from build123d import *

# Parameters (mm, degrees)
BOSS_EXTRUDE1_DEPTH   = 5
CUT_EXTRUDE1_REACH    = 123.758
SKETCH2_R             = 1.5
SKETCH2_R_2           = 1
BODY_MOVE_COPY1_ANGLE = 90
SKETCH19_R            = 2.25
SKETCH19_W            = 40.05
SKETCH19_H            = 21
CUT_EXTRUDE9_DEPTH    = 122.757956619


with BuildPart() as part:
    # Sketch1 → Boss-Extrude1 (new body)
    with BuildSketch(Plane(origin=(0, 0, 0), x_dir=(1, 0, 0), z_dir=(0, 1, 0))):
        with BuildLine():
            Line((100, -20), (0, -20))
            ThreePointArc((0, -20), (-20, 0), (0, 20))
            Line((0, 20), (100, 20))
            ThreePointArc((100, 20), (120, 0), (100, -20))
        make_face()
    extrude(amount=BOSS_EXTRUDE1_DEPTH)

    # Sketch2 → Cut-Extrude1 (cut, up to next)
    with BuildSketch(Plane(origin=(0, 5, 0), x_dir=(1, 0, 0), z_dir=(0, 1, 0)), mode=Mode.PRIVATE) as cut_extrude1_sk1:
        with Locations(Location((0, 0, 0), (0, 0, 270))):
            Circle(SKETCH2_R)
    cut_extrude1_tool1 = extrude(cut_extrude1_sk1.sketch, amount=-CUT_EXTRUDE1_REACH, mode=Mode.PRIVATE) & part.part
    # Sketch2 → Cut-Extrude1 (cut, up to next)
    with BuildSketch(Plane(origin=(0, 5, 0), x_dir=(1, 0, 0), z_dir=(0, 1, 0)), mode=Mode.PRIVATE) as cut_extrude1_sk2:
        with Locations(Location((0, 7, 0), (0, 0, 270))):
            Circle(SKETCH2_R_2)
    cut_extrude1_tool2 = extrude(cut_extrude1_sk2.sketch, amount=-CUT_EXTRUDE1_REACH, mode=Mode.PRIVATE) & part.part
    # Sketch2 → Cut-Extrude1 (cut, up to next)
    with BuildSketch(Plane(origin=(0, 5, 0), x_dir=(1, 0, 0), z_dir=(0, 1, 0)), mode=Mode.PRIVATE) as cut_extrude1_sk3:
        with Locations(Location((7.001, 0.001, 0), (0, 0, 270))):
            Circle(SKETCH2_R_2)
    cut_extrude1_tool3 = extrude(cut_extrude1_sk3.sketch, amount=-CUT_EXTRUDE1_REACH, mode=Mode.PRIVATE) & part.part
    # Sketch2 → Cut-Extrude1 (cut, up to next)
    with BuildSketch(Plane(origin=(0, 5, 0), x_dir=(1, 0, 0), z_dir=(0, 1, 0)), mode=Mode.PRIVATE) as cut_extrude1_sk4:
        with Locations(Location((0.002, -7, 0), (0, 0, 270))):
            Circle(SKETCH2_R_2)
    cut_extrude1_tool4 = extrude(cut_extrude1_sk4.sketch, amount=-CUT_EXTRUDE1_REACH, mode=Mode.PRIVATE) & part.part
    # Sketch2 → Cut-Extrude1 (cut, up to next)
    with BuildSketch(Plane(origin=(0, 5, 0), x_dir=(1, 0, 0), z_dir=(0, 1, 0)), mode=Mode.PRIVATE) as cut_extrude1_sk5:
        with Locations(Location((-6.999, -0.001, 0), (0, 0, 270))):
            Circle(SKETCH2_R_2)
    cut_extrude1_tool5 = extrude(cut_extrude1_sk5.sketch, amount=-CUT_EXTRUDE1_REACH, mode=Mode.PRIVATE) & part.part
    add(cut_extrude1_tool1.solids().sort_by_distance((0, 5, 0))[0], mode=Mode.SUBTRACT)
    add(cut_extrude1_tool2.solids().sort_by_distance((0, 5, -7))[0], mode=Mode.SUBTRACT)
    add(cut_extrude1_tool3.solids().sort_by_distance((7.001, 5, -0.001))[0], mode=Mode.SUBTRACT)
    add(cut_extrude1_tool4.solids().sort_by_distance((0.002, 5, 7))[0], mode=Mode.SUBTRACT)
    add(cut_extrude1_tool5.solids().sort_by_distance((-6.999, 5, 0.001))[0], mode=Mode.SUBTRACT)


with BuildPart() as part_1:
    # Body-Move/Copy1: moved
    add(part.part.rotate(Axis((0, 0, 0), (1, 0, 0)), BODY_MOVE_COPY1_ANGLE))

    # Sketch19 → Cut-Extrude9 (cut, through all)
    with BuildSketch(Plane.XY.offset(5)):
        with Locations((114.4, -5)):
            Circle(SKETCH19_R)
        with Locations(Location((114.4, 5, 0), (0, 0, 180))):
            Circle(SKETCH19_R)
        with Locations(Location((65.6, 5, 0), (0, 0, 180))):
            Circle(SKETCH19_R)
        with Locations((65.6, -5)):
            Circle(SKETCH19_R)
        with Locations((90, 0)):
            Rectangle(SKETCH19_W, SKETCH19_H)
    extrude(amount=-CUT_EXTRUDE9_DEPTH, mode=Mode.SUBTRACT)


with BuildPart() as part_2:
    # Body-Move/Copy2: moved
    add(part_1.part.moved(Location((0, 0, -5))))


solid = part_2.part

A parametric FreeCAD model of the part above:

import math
import FreeCAD as App
import Part
import Sketcher

V = App.Vector
Q = App.Units.Quantity


def add_polygon(sketch, points):
    """Adds a closed chain of lines whose ends are joined by coincident constraints."""
    first, n = sketch.GeometryCount, len(points)
    for a, b in zip(points, points[1:] + points[:1]):
        sketch.addGeometry(Part.LineSegment(App.Vector(*a, 0), App.Vector(*b, 0)), False)
    for i in range(n):
        sketch.addConstraint(Sketcher.Constraint("Coincident", first + i, 2, first + (i + 1) % n, 1))

doc = App.newDocument("Part")
body = doc.addObject("PartDesign::Body", "Body")

# Sketch on XZ plane
sketch1 = body.newObject("Sketcher::SketchObject", "Sketch")
sketch1.AttachmentSupport = (doc.getObject("XZ_Plane"), [""])
sketch1.MapMode = "FlatFace"
sketch1.addGeometry([
    Part.LineSegment(V(0, 20, 0), V(100, 20, 0)),
    Part.ArcOfCircle(Part.Circle(V(100, 0, 0), V(0, 0, 1), 20), math.radians(-90), math.radians(90)),
    Part.LineSegment(V(100, -20, 0), V(0, -20, 0)),
    Part.ArcOfCircle(Part.Circle(V(0, 0, 0), V(0, 0, 1), 20), math.radians(90), math.radians(270)),
], False)
sketch1.addConstraint([
    Sketcher.Constraint("Tangent", 0, 2, 1, 2),
    Sketcher.Constraint("Tangent", 1, 1, 2, 1),
    Sketcher.Constraint("Tangent", 2, 2, 3, 2),
    Sketcher.Constraint("Tangent", 3, 1, 0, 1),
    Sketcher.Constraint("Horizontal", 0),
    Sketcher.Constraint("Horizontal", 2),
    Sketcher.Constraint("Coincident", 3, 3, -1, 1),
    Sketcher.Constraint("Radius", 1, Q("20 mm")),
    Sketcher.Constraint("DistanceX", 0, 1, 0, 2, Q("100 mm")),
])
pad1 = body.newObject("PartDesign::Pad", "Pad")
pad1.Profile = sketch1
pad1.Length = 5
pad1.Reversed = True

# Sketch on XZ plane
sketch2 = body.newObject("Sketcher::SketchObject", "Sketch001")
sketch2.AttachmentSupport = (doc.getObject("XZ_Plane"), [""])
sketch2.MapMode = "FlatFace"
sketch2.AttachmentOffset = App.Placement(V(0, 0, -5), App.Rotation())
sketch2.addGeometry(Part.Circle(V(0, 0, 0), V(0, 0, 1), 1.5), False)
sketch2.addConstraint([
    Sketcher.Constraint("Coincident", 0, 3, -1, 1),
    Sketcher.Constraint("Diameter", 0, Q("3 mm")),
])
pocket1 = body.newObject("PartDesign::Pocket", "Pocket")
pocket1.Profile = sketch2
pocket1.Type = "UpToFirst"
pocket1.Reversed = True

# Sketch on XZ plane
sketch3 = body.newObject("Sketcher::SketchObject", "Sketch002")
sketch3.AttachmentSupport = (doc.getObject("XZ_Plane"), [""])
sketch3.MapMode = "FlatFace"
sketch3.AttachmentOffset = App.Placement(V(0, 0, -5), App.Rotation())
sketch3.addGeometry(Part.Circle(V(0, -7, 0), V(0, 0, 1), 1), False)
sketch3.addConstraint([
    Sketcher.Constraint("PointOnObject", 0, 3, -2),
    Sketcher.Constraint("Diameter", 0, Q("2 mm")),
    Sketcher.Constraint("DistanceY", 0, 3, -1, 1, Q("7 mm")),
])
pocket2 = body.newObject("PartDesign::Pocket", "Pocket001")
pocket2.Profile = sketch3
pocket2.Type = "UpToFirst"
pocket2.Reversed = True

# Sketch on XZ plane
sketch4 = body.newObject("Sketcher::SketchObject", "Sketch003")
sketch4.AttachmentSupport = (doc.getObject("XZ_Plane"), [""])
sketch4.MapMode = "FlatFace"
sketch4.AttachmentOffset = App.Placement(V(0, 0, -5), App.Rotation())
sketch4.addGeometry(Part.Circle(V(7, 0, 0), V(0, 0, 1), 1), False)
sketch4.addConstraint([
    Sketcher.Constraint("Diameter", 0, Q("2 mm")),
    Sketcher.Constraint("DistanceX", -1, 1, 0, 3, Q("7.001 mm")),
    Sketcher.Constraint("DistanceY", 0, 3, -1, 1, Q("0.001 mm")),
])
pocket3 = body.newObject("PartDesign::Pocket", "Pocket002")
pocket3.Profile = sketch4
pocket3.Type = "UpToFirst"
pocket3.Reversed = True

# Sketch on XZ plane
sketch5 = body.newObject("Sketcher::SketchObject", "Sketch004")
sketch5.AttachmentSupport = (doc.getObject("XZ_Plane"), [""])
sketch5.MapMode = "FlatFace"
sketch5.AttachmentOffset = App.Placement(V(0, 0, -5), App.Rotation())
sketch5.addGeometry(Part.Circle(V(0, 7, 0), V(0, 0, 1), 1), False)
sketch5.addConstraint([
    Sketcher.Constraint("Diameter", 0, Q("2 mm")),
    Sketcher.Constraint("DistanceY", -1, 1, 0, 3, Q("7 mm")),
    Sketcher.Constraint("DistanceX", -1, 1, 0, 3, Q("0.002 mm")),
])
pocket4 = body.newObject("PartDesign::Pocket", "Pocket003")
pocket4.Profile = sketch5
pocket4.Type = "UpToFirst"
pocket4.Reversed = True

# Sketch on XZ plane
sketch6 = body.newObject("Sketcher::SketchObject", "Sketch005")
sketch6.AttachmentSupport = (doc.getObject("XZ_Plane"), [""])
sketch6.MapMode = "FlatFace"
sketch6.AttachmentOffset = App.Placement(V(0, 0, -5), App.Rotation())
sketch6.addGeometry(Part.Circle(V(-7, 0, 0), V(0, 0, 1), 1), False)
sketch6.addConstraint([
    Sketcher.Constraint("Diameter", 0, Q("2 mm")),
    Sketcher.Constraint("DistanceX", 0, 3, -1, 1, Q("6.999 mm")),
    Sketcher.Constraint("DistanceY", -1, 1, 0, 3, Q("0.001 mm")),
])
pocket5 = body.newObject("PartDesign::Pocket", "Pocket004")
pocket5.Profile = sketch6
pocket5.Type = "UpToFirst"
pocket5.Reversed = True
body2 = doc.addObject("PartDesign::Body", "Body001")
doc.recompute()

body.Placement = App.Placement(V(0, 0, 0), App.Rotation(V(1, 0, 0), 90))
boolean = body2.newObject("PartDesign::Boolean", "Boolean")
boolean.Type = "Fuse"
boolean.addObjects([body])

# Sketch on XY plane
sketch7 = body2.newObject("Sketcher::SketchObject", "Sketch006")
sketch7.AttachmentSupport = (doc.getObject("XY_Plane001"), [""])
sketch7.MapMode = "FlatFace"
sketch7.AttachmentOffset = App.Placement(V(0, 0, 5), App.Rotation())
sketch7.addGeometry(Part.Circle(V(114.4, -5, 0), V(0, 0, 1), 2.2), False)  # 0
sketch7.addGeometry(Part.Circle(V(114.4, 5, 0), V(0, 0, 1), 2.2), False)  # 1
sketch7.addGeometry(Part.Circle(V(65.6, 5, 0), V(0, 0, 1), 2.2), False)  # 2
sketch7.addGeometry(Part.Circle(V(65.6, -5, 0), V(0, 0, 1), 2.2), False)  # 3
add_polygon(sketch7, [(70, 10.5), (70, -10.5), (110, -10.5), (110, 10.5)])  # lines 4-7
sketch7.addConstraint([
    Sketcher.Constraint("Vertical", 4),
    Sketcher.Constraint("Horizontal", 5),
    Sketcher.Constraint("Vertical", 6),
    Sketcher.Constraint("Horizontal", 7),
    Sketcher.Constraint("Equal", 0, 1),
    Sketcher.Constraint("Equal", 1, 2),
    Sketcher.Constraint("Equal", 2, 3),
    Sketcher.Constraint("Symmetric", 0, 3, 1, 3, -1),
    Sketcher.Constraint("Symmetric", 2, 3, 3, 3, -1),
    Sketcher.Constraint("Horizontal", 1, 3, 2, 3),
    Sketcher.Constraint("Diameter", 0, Q("4.5 mm")),
    Sketcher.Constraint("DistanceY", 4, 2, 4, 1, Q("21 mm")),
    Sketcher.Constraint("DistanceY", 0, 3, -1, 1, Q("5 mm")),
    Sketcher.Constraint("DistanceX", 5, 1, 5, 2, Q("40.05 mm")),
    Sketcher.Constraint("DistanceX", -1, 1, 0, 3, Q("114.4 mm")),
    Sketcher.Constraint("DistanceX", -1, 1, 2, 3, Q("65.6 mm")),
    Sketcher.Constraint("DistanceY", 4, 2, -1, 1, Q("10.5 mm")),
    Sketcher.Constraint("DistanceX", -1, 1, 4, 2, Q("69.975 mm")),
])
pocket6 = body2.newObject("PartDesign::Pocket", "Pocket005")
pocket6.Profile = sketch7
pocket6.Type = "ThroughAll"
body3 = doc.addObject("PartDesign::Body", "Body002")
doc.recompute()

body2.Placement = App.Placement(V(0, 0, -5), App.Rotation(V(0, 0, 1), 0))
boolean2 = body3.newObject("PartDesign::Boolean", "Boolean001")
boolean2.Type = "Fuse"
boolean2.addObjects([body2])

doc.recompute()
